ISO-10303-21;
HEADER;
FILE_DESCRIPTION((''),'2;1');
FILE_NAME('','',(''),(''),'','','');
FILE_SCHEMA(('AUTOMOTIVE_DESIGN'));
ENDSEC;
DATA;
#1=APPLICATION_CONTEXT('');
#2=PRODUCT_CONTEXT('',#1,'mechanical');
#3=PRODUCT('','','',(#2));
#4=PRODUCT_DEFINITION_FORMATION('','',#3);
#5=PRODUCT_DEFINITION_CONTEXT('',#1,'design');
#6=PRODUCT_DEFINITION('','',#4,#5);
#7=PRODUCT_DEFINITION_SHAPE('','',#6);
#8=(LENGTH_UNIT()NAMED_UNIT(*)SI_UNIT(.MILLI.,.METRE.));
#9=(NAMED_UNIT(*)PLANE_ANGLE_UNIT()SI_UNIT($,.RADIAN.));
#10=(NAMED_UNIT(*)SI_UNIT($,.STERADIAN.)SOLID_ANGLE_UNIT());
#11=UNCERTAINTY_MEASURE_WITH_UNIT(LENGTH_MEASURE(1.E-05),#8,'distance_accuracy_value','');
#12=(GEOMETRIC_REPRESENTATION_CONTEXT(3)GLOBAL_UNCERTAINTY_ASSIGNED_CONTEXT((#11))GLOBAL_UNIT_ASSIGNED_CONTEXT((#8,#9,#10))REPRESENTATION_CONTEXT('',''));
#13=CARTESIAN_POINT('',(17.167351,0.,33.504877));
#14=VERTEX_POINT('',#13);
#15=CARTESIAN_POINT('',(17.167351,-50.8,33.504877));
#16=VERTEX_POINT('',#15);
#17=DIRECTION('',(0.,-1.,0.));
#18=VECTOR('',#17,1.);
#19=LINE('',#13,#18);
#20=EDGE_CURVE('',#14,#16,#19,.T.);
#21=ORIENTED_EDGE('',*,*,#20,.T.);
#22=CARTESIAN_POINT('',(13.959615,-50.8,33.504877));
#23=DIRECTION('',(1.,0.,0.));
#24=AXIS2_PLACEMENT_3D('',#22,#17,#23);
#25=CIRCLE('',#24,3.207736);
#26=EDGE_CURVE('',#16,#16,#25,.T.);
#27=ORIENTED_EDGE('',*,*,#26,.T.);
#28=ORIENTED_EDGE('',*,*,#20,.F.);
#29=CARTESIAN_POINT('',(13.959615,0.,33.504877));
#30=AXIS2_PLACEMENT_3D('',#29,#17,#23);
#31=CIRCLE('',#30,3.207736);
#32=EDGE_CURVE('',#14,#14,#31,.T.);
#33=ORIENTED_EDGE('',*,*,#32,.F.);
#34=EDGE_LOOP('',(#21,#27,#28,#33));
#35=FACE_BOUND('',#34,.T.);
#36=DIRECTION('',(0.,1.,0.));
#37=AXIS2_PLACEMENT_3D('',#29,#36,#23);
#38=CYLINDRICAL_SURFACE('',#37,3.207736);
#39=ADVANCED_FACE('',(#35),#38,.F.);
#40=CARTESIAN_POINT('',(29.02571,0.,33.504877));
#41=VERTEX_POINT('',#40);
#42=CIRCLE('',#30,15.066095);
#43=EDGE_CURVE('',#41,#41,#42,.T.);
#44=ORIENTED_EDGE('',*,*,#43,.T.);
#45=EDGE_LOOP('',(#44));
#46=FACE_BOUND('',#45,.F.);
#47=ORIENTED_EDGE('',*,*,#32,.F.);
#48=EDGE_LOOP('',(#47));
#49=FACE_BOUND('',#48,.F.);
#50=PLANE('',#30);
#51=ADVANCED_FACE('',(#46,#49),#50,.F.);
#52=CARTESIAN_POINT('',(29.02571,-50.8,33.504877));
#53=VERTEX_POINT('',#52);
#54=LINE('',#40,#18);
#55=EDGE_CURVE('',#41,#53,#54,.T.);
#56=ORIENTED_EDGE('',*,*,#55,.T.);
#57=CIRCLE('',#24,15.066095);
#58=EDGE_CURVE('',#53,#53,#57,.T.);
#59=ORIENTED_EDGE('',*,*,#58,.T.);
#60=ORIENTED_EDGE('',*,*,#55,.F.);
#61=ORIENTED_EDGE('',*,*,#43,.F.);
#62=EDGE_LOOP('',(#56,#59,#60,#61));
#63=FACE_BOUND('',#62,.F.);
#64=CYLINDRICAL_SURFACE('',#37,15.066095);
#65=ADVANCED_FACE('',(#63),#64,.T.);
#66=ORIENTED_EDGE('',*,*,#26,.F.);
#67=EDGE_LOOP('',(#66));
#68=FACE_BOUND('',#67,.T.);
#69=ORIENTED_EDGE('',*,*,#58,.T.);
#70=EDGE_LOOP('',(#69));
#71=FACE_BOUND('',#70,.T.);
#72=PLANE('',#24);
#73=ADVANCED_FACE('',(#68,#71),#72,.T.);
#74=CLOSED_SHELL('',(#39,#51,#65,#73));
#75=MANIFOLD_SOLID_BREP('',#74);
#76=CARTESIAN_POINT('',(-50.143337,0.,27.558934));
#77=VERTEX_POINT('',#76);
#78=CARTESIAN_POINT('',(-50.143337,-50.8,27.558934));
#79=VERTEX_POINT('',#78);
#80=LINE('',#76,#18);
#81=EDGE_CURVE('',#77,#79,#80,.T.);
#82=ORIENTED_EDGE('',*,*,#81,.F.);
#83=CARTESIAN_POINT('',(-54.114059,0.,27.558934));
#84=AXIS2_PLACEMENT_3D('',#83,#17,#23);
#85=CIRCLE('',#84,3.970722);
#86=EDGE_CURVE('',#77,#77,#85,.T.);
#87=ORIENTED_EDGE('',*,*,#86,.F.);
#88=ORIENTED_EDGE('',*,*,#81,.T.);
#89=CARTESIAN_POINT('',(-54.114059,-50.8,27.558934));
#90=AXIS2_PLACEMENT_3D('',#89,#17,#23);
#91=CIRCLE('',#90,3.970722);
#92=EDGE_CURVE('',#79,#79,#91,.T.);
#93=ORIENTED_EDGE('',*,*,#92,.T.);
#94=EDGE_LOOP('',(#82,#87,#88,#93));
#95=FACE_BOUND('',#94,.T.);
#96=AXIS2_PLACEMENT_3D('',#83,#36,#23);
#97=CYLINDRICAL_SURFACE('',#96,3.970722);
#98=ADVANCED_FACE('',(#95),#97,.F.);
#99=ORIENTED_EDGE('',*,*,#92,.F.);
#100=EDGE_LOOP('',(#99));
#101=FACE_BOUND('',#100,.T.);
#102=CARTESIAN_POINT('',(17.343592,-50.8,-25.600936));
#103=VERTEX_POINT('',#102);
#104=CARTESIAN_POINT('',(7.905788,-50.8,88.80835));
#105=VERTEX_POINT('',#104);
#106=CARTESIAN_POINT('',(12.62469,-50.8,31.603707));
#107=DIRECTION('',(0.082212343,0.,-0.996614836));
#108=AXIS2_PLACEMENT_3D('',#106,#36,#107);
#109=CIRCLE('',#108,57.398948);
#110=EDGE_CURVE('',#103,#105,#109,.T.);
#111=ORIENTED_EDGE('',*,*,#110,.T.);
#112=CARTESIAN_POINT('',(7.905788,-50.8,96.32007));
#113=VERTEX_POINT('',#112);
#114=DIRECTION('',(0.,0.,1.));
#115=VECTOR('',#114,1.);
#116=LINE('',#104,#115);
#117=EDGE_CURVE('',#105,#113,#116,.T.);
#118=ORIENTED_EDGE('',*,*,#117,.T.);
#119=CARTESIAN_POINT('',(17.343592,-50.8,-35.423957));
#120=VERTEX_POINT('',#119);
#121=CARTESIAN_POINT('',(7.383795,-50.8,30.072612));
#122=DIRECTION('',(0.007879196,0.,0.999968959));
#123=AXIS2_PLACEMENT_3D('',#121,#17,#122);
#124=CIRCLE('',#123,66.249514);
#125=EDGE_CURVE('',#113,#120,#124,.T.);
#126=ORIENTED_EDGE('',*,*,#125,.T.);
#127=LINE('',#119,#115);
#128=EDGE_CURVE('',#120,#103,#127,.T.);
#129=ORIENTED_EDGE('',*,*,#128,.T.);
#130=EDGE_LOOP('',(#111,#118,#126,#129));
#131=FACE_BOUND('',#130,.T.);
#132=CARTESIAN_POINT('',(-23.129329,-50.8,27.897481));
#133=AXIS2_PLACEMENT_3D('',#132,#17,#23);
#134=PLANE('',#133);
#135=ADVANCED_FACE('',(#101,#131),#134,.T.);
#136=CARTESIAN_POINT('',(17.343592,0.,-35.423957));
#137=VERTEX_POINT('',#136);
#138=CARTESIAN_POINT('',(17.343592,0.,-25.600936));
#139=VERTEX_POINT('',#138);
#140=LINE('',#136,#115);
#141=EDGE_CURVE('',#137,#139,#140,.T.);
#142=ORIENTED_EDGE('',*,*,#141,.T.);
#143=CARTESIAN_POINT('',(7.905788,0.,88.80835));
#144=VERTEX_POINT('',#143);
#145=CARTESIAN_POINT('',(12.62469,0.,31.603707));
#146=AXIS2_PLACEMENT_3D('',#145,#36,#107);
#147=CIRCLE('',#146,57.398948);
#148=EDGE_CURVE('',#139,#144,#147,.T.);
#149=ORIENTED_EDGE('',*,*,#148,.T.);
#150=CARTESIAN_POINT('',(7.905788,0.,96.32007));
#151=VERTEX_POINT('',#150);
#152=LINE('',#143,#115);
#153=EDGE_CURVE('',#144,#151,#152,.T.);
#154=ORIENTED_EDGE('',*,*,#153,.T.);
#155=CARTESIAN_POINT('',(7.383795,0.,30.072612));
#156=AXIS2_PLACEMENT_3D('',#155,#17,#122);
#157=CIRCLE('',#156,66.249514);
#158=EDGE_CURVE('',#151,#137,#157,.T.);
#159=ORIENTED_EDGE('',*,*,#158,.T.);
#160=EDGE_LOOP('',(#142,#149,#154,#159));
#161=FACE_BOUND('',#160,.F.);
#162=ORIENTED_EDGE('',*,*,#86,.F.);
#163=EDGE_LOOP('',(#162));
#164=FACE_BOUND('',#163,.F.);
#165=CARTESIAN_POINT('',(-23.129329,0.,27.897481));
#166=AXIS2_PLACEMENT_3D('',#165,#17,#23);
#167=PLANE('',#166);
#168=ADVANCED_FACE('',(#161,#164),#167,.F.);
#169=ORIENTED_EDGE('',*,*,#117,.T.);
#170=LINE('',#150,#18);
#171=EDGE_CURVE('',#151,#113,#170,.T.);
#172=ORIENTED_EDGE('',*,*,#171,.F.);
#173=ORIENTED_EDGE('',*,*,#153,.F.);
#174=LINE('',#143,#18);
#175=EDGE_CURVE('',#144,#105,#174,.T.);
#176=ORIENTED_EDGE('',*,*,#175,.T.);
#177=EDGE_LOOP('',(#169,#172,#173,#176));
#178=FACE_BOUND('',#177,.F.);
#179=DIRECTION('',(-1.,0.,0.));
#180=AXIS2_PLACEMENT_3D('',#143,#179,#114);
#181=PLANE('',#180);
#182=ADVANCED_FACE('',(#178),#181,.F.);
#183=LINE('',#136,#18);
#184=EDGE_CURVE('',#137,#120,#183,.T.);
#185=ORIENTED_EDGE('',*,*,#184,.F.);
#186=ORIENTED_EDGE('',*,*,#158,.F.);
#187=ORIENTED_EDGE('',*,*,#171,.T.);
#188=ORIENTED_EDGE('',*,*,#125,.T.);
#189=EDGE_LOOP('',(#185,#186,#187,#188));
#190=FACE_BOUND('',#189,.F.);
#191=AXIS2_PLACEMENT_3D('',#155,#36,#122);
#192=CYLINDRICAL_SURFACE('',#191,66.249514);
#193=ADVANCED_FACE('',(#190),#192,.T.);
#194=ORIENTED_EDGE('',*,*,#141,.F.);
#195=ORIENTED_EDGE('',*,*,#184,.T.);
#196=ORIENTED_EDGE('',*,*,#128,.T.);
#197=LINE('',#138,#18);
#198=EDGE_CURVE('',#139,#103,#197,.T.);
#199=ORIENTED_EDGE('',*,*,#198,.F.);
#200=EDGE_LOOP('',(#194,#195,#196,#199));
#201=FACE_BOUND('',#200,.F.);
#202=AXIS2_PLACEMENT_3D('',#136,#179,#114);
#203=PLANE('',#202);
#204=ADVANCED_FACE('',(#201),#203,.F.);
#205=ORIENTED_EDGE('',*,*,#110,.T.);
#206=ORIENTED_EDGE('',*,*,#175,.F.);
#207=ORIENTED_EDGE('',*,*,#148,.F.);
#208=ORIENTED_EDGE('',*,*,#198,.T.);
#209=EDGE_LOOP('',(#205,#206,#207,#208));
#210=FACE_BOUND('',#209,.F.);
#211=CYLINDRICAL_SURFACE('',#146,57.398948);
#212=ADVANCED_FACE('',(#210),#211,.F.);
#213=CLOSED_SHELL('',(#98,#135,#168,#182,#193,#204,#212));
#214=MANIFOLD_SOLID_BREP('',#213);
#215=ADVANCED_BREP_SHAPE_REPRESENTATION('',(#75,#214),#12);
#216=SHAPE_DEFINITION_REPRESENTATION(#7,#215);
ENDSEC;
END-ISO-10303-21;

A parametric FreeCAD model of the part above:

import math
import FreeCAD as App
import Part
import Sketcher
from FreeCAD import Vector
Q = App.Units.Quantity

doc = App.newDocument("Part")
body = doc.addObject("PartDesign::Body", "Body")
body.AllowCompound = True

# Sketch on XZ plane
sketch1 = body.newObject("Sketcher::SketchObject", "Sketch")
sketch1.AttachmentSupport = (doc.getObject("XZ_Plane"), [""])
sketch1.MapMode = "FlatFace"
sketch1.addGeometry([
    Part.Circle(Vector(13.959615, 33.504877, 0), Vector(0, 0, 1), 15.066095),  # 0
    Part.Circle(Vector(13.959615, 33.504877, 0), Vector(0, 0, 1), 3.207736),  # 1
    Part.ArcOfCircle(Part.Circle(Vector(12.62469, 31.603707, 0), Vector(0, 0, 1), 57.398948), math.radians(94.715743), math.radians(274.715743)),  # 2
    Part.LineSegment(Vector(7.905788, 88.80835, 0), Vector(7.905788, 96.32007, 0)),  # 3
    Part.ArcOfCircle(Part.Circle(Vector(7.383795, 30.072612, 0), Vector(0, 0, 1), 66.249514), math.radians(89.548551), math.radians(278.646495)),  # 4
    Part.LineSegment(Vector(17.343592, -35.423957, 0), Vector(17.343592, -25.600936, 0)),  # 5
    Part.Circle(Vector(-54.114059, 27.558934, 0), Vector(0, 0, 1), 3.970722),  # 6
], False)
sketch1.addConstraint([
    Sketcher.Constraint("Coincident", 2, 1, 3, 1),
    Sketcher.Constraint("Coincident", 3, 2, 4, 1),
    Sketcher.Constraint("Coincident", 4, 2, 5, 1),
    Sketcher.Constraint("Coincident", 5, 2, 2, 2),
    Sketcher.Constraint("Vertical", 3),
    Sketcher.Constraint("Vertical", 5),
    Sketcher.Constraint("Coincident", 1, 3, 0, 3),
    Sketcher.Constraint("Diameter", 0, 30.13219),
    Sketcher.Constraint("Diameter", 1, 6.415472),
    Sketcher.Constraint("Diameter", 6, 7.941444),
    Sketcher.Constraint("Radius", 2, 57.398948),
    Sketcher.Constraint("Radius", 4, 66.249514),
    Sketcher.Constraint("DistanceY", 3, 1, 3, 2, 7.51172),
    Sketcher.Constraint("DistanceY", 5, 1, 5, 2, 9.823021),
    Sketcher.Constraint("DistanceX", 2, 1, 2, 3, 4.718902),
    Sketcher.Constraint("DistanceX", -1, 1, 2, 3, 12.62469),
    Sketcher.Constraint("DistanceX", 6, 3, -1, 1, 54.114059),
    Sketcher.Constraint("DistanceY", -1, 1, 2, 1, 88.80835),
    Sketcher.Constraint("DistanceY", 2, 3, 0, 3, 1.90117),
    Sketcher.Constraint("DistanceX", 4, 3, 0, 3, 6.57582),
    Sketcher.Constraint("DistanceY", 6, 3, 4, 3, 2.513678),
    Sketcher.Constraint("DistanceY", 4, 2, 4, 3, 65.496569),
])
pad1 = body.newObject("PartDesign::Pad", "Pad")
pad1.Profile = sketch1
pad1.Length = Q("2 in")

doc.recompute()
